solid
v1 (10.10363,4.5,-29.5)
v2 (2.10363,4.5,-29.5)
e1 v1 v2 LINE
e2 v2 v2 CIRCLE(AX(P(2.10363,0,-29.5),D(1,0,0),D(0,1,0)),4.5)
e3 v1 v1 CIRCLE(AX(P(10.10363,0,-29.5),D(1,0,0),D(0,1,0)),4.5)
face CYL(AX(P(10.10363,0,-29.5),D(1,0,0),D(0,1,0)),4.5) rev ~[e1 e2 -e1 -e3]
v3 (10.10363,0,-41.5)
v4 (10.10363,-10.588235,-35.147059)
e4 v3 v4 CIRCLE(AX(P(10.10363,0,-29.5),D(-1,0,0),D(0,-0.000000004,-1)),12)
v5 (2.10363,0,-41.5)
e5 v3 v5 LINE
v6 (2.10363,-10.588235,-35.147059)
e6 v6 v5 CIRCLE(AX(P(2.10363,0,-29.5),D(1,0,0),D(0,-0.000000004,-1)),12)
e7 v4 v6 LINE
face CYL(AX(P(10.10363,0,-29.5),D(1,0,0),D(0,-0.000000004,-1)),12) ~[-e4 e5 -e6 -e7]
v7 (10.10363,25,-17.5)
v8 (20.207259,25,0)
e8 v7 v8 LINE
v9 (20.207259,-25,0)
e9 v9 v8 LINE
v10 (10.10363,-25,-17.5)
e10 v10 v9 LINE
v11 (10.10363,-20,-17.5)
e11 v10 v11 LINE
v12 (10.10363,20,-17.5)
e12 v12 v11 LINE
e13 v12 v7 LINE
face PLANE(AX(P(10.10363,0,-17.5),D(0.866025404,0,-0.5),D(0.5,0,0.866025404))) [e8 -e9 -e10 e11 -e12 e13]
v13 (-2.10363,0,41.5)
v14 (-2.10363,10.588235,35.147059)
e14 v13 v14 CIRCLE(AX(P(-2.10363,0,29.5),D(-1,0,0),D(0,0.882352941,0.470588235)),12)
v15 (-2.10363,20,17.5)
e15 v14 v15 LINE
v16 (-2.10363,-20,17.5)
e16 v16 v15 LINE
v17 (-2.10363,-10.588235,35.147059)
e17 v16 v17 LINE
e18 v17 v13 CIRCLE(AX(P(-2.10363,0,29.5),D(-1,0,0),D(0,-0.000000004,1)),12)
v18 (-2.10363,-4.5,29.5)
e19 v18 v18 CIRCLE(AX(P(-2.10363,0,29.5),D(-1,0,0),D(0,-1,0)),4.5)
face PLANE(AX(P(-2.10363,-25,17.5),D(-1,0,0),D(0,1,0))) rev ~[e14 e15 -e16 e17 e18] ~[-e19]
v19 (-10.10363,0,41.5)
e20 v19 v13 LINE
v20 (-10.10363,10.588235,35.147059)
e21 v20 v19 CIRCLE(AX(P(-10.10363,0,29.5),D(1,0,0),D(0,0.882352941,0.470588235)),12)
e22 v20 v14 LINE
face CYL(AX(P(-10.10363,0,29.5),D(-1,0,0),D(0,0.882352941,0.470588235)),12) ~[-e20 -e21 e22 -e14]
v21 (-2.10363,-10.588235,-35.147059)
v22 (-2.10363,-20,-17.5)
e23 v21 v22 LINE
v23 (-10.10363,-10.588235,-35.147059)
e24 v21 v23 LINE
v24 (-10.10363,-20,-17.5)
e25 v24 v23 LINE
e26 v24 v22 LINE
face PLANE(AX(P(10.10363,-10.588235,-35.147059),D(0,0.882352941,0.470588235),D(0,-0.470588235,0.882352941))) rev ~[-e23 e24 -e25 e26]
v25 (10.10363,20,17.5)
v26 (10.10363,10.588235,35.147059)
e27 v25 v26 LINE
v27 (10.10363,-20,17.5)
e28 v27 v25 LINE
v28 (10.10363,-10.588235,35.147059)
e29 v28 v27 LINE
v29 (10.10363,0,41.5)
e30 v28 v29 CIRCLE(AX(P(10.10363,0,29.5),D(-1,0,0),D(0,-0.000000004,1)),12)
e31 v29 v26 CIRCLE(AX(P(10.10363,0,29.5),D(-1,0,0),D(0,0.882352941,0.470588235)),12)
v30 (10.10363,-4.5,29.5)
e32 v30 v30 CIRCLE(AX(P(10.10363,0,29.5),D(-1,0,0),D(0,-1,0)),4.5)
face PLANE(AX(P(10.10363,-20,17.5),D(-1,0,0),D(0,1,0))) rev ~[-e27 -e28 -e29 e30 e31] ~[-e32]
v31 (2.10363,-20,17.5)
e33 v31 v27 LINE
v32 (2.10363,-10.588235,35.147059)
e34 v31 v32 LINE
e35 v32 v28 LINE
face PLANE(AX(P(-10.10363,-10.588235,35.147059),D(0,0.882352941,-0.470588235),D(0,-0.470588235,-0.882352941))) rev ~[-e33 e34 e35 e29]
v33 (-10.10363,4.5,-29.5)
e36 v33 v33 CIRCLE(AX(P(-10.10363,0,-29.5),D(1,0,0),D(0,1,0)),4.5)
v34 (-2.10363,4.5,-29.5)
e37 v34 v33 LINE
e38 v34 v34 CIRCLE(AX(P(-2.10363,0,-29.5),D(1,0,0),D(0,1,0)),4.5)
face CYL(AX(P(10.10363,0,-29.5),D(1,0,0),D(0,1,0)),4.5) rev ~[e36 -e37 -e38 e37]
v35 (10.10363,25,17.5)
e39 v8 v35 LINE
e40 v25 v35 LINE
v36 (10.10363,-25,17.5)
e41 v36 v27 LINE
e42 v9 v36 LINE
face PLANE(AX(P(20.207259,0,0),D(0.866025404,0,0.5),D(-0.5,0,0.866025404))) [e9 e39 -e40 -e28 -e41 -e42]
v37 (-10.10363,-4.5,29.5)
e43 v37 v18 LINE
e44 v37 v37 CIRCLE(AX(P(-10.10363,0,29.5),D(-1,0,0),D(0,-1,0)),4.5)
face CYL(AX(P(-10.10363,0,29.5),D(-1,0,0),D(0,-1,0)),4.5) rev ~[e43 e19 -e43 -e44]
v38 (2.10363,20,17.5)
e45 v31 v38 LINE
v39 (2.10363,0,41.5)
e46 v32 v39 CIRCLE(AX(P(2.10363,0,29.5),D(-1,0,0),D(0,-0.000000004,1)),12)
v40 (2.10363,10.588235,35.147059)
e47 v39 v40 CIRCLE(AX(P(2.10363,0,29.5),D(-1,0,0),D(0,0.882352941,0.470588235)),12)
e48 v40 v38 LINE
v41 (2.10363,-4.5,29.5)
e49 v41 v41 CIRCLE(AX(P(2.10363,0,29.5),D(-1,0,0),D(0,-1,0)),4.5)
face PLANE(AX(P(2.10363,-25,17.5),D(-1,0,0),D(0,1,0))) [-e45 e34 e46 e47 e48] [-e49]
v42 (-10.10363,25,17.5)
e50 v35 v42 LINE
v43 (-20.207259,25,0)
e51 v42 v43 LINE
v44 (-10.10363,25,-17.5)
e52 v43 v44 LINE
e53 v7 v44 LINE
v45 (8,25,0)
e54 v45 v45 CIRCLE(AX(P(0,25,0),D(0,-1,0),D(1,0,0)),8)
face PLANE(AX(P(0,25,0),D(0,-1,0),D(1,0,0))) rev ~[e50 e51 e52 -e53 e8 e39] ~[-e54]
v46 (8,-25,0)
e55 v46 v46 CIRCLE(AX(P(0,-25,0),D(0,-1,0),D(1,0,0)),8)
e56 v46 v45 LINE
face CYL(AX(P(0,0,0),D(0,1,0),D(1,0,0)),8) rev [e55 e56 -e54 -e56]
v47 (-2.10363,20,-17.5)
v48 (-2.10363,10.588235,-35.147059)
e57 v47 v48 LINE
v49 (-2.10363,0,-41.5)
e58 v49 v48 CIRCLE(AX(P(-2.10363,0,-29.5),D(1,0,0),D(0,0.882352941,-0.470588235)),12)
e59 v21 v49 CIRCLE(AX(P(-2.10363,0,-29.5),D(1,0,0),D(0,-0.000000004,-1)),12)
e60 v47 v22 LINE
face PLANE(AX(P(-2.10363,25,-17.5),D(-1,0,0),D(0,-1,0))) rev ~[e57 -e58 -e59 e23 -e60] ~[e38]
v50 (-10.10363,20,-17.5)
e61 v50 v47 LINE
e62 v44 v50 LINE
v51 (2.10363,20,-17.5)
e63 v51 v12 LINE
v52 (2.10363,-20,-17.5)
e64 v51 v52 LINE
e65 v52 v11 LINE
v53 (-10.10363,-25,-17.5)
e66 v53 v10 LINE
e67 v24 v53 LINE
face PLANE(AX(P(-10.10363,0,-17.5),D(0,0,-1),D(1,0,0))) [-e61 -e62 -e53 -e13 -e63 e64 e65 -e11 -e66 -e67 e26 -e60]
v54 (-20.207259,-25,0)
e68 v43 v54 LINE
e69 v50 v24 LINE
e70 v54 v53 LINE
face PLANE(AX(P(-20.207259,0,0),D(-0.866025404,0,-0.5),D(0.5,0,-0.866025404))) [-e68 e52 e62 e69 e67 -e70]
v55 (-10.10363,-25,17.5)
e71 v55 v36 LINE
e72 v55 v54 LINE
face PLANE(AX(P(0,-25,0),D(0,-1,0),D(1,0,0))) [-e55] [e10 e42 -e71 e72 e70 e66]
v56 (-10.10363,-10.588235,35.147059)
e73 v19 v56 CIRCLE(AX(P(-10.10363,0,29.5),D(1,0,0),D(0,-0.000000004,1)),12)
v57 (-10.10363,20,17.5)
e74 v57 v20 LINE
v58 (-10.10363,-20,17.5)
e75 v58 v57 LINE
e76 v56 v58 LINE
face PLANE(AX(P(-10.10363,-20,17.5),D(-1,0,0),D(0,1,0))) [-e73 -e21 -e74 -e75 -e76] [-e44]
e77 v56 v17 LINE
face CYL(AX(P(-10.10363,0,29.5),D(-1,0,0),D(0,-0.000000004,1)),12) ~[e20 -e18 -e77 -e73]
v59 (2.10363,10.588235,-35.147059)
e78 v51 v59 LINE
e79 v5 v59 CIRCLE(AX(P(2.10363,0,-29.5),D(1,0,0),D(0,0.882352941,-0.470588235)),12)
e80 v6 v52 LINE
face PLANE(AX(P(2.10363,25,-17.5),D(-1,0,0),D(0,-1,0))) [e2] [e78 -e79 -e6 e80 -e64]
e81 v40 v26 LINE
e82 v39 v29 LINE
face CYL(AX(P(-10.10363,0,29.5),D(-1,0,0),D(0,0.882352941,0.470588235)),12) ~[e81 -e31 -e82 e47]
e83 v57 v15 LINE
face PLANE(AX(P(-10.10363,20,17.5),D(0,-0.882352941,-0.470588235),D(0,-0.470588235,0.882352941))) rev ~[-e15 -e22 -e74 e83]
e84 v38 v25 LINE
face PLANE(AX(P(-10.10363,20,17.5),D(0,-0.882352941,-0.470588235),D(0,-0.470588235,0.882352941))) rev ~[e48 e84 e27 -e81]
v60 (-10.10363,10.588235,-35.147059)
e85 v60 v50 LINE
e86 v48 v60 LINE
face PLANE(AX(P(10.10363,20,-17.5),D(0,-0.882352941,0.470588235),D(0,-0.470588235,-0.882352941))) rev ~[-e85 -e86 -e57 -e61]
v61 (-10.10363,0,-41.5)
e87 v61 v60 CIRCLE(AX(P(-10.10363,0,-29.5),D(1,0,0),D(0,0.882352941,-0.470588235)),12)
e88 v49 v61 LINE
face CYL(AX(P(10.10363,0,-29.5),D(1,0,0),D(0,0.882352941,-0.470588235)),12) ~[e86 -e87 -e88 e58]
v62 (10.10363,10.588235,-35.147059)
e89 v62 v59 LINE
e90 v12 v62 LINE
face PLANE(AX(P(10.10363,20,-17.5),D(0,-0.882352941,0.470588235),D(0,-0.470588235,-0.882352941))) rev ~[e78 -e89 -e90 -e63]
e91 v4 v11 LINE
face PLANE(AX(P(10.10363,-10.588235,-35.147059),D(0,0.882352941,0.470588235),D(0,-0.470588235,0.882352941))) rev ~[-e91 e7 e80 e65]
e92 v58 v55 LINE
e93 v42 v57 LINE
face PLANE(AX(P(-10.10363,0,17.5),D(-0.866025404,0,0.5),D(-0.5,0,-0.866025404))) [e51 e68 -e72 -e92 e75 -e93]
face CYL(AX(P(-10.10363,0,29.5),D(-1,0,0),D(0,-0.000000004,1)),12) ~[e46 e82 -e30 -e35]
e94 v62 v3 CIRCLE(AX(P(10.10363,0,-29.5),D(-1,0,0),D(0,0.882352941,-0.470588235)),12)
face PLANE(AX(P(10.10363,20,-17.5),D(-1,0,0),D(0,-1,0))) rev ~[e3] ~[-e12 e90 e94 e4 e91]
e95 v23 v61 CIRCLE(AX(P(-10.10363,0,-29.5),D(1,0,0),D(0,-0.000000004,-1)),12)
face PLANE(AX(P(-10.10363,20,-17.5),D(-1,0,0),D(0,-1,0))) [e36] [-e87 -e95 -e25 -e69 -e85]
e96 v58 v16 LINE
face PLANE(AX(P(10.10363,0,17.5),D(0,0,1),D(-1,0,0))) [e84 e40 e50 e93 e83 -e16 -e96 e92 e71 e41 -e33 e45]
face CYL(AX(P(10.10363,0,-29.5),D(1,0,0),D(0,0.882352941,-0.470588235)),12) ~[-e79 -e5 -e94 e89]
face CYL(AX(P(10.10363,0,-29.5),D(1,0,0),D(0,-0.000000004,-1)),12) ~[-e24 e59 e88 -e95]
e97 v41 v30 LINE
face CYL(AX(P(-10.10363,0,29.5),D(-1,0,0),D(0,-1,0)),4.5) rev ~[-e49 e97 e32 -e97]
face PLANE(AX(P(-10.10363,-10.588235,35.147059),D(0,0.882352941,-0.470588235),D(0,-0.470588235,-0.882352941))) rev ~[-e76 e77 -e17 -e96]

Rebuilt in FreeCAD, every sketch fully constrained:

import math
import FreeCAD as App
import Part
import Sketcher

V = App.Vector
Q = App.Units.Quantity


def add_polygon(sketch, points):
    """Adds a closed chain of lines whose ends are joined by coincident constraints."""
    first, n = sketch.GeometryCount, len(points)
    for a, b in zip(points, points[1:] + points[:1]):
        sketch.addGeometry(Part.LineSegment(App.Vector(*a, 0), App.Vector(*b, 0)), False)
    for i in range(n):
        sketch.addConstraint(Sketcher.Constraint("Coincident", first + i, 2, first + (i + 1) % n, 1))

doc = App.newDocument("Part")
body = doc.addObject("PartDesign::Body", "Body")

sketch1 = body.newObject("Sketcher::SketchObject", "Sketch")
sketch1.AttachmentSupport = (doc.getObject("XZ_Plane"), [""])
sketch1.MapMode = "FlatFace"
add_polygon(sketch1, [(10, 18), (-10, 18), (-20, 0), (-10, -18), (10, -18), (20, 0)])
sketch1.addGeometry(Part.Circle(V(0, 0, 0), V(0, 0, 1), 8), False)
sketch1.addConstraint([
    Sketcher.Constraint("Horizontal", 0),
    Sketcher.Constraint("Horizontal", 3),
    Sketcher.Constraint("Coincident", 6, 3, -1, 1),
    Sketcher.Constraint("Symmetric", 0, 2, 3, 2, -1, 1),
    Sketcher.Constraint("Symmetric", 1, 2, 4, 2, -1, 1),
    Sketcher.Constraint("PointOnObject", 1, 2, -1),
    Sketcher.Constraint("Parallel", 2, 5),
    Sketcher.Constraint("Vertical", 0, 2, 2, 2),
    Sketcher.Constraint("Diameter", 6, 16.0),
    Sketcher.Constraint("Angle", 1, Q("-120 deg")),
    Sketcher.Constraint("DistanceY", 2, 2, 0, 2, 35.0),
    Sketcher.Constraint("DistanceX", 0, 2, 0, 1, 20.207259),
])
pad1 = body.newObject("PartDesign::Pad", "Pad")
pad1.Profile = sketch1
pad1.Length = 50
pad1.Midplane = True

sketch2 = body.newObject("Sketcher::SketchObject", "Sketch001")
sketch2.AttachmentSupport = (doc.getObject("XY_Plane"), [""])
sketch2.MapMode = "FlatFace"
sketch2.AttachmentOffset = App.Placement(V(0, 0, 17.5), App.Rotation())
add_polygon(sketch2, [(-10, 20), (-10, -20), (10, -20), (10, 20)])
sketch2.addConstraint([
    Sketcher.Constraint("Vertical", 0),
    Sketcher.Constraint("Horizontal", 1),
    Sketcher.Constraint("Vertical", 2),
    Sketcher.Constraint("Horizontal", 3),
    Sketcher.Constraint("Symmetric", 0, 2, 2, 2, -1, 1),
    Sketcher.Constraint("DistanceY", 0, 2, 0, 1, 40.0),
    Sketcher.Constraint("DistanceX", 1, 1, 1, 2, 20.207259),
])
pad2 = body.newObject("PartDesign::Pad", "Pad001")
pad2.Profile = sketch2
pad2.Length = 24

sketch3 = body.newObject("Sketcher::SketchObject", "Sketch002")
sketch3.AttachmentSupport = (doc.getObject("YZ_Plane"), [""])
sketch3.MapMode = "FlatFace"
sketch3.AttachmentOffset = App.Placement(V(0, 0, -10.10363), App.Rotation())
sketch3.addGeometry(Part.Circle(V(0, 29.5, 0), V(0, 0, 1), 4.5), False)
sketch3.addConstraint([
    Sketcher.Constraint("PointOnObject", 0, 3, -2),
    Sketcher.Constraint("Diameter", 0, 9.0),
    Sketcher.Constraint("DistanceY", -1, 1, 0, 3, 29.5),
])
pocket1 = body.newObject("PartDesign::Pocket", "Pocket")
pocket1.Profile = sketch3
pocket1.Type = "ThroughAll"
pocket1.Reversed = True

sketch4 = body.newObject("Sketcher::SketchObject", "Sketch003")
sketch4.AttachmentSupport = (doc.getObject("YZ_Plane"), [""])
sketch4.MapMode = "FlatFace"
sketch4.AttachmentOffset = App.Placement(V(0, 0, -10.10363), App.Rotation())
sketch4.addGeometry([
    Part.LineSegment(V(20, 42, 0), V(20, 18, 0)),
    Part.LineSegment(V(20, 18, 0), V(11, 35, 0)),
    Part.ArcOfCircle(Part.Circle(V(0, 30, 0), V(0, 0, 1), 12), math.radians(28), math.radians(90)),
    Part.LineSegment(V(0, 42, 0), V(20, 42, 0)),
    Part.LineSegment(V(-11, 35, 0), V(-20, 18, 0)),
    Part.LineSegment(V(-20, 18, 0), V(-20, 42, 0)),
    Part.LineSegment(V(-20, 42, 0), V(0, 42, 0)),
    Part.ArcOfCircle(Part.Circle(V(0, 30, 0), V(0, 0, 1), 12), math.radians(90), math.radians(152)),
], False)
sketch4.addConstraint([
    Sketcher.Constraint("Coincident", 0, 2, 1, 1),
    Sketcher.Constraint("Tangent", 1, 2, 2, 1),
    Sketcher.Constraint("Tangent", 2, 2, 3, 1),
    Sketcher.Constraint("Coincident", 3, 2, 0, 1),
    Sketcher.Constraint("Coincident", 4, 2, 5, 1),
    Sketcher.Constraint("Coincident", 5, 2, 6, 1),
    Sketcher.Constraint("Tangent", 6, 2, 7, 1),
    Sketcher.Constraint("Tangent", 7, 2, 4, 1),
    Sketcher.Constraint("Vertical", 0),
    Sketcher.Constraint("Horizontal", 3),
    Sketcher.Constraint("Vertical", 5),
    Sketcher.Constraint("Horizontal", 6),
    Sketcher.Constraint("Coincident", 7, 3, 2, 3),
    Sketcher.Constraint("Equal", 2, 7),
    Sketcher.Constraint("Symmetric", 0, 2, 4, 2, -2),
    Sketcher.Constraint("PointOnObject", 2, 3, -2),
    Sketcher.Constraint("Radius", 2, 12.0),
    Sketcher.Constraint("DistanceX", 3, 1, 3, 2, 20.0),
    Sketcher.Constraint("DistanceY", 0, 2, 0, 1, 24.0),
    Sketcher.Constraint("DistanceY", -1, 1, 2, 3, 29.5),
])
pocket2 = body.newObject("PartDesign::Pocket", "Pocket001")
pocket2.Profile = sketch4
pocket2.Length = 25.4
pocket2.Reversed = True

sketch5 = body.newObject("Sketcher::SketchObject", "Sketch004")
sketch5.AttachmentSupport = (doc.getObject("XY_Plane"), [""])
sketch5.MapMode = "FlatFace"
sketch5.AttachmentOffset = App.Placement(V(0, 0, 17.5), App.Rotation())
add_polygon(sketch5, [(-2.1, 25), (-2.1, -25), (2.1, -25), (2.1, 25)])
sketch5.addConstraint([
    Sketcher.Constraint("Vertical", 0),
    Sketcher.Constraint("Horizontal", 1),
    Sketcher.Constraint("Vertical", 2),
    Sketcher.Constraint("Horizontal", 3),
    Sketcher.Constraint("Symmetric", 0, 2, 2, 2, -1, 1),
    Sketcher.Constraint("DistanceY", 0, 2, 0, 1, 50.0),
    Sketcher.Constraint("DistanceX", 1, 1, 1, 2, 4.207259),
])
pocket3 = body.newObject("PartDesign::Pocket", "Pocket002")
pocket3.Profile = sketch5
pocket3.Length = 25.4
pocket3.Reversed = True

sketch6 = body.newObject("Sketcher::SketchObject", "Sketch005")
sketch6.AttachmentSupport = (doc.getObject("XY_Plane"), [""])
sketch6.MapMode = "FlatFace"
sketch6.AttachmentOffset = App.Placement(V(0, 0, -17.5), App.Rotation())
add_polygon(sketch6, [(-10, -20), (-10, 20), (10, 20), (10, -20)])
sketch6.addConstraint([
    Sketcher.Constraint("Vertical", 0),
    Sketcher.Constraint("Horizontal", 1),
    Sketcher.Constraint("Vertical", 2),
    Sketcher.Constraint("Horizontal", 3),
    Sketcher.Constraint("Symmetric", 0, 2, 2, 2, -1, 1),
    Sketcher.Constraint("DistanceY", 0, 1, 0, 2, 40.0),
    Sketcher.Constraint("DistanceX", 1, 1, 1, 2, 20.207259),
])
pad3 = body.newObject("PartDesign::Pad", "Pad002")
pad3.Profile = sketch6
pad3.Length = 24
pad3.Reversed = True

sketch7 = body.newObject("Sketcher::SketchObject", "Sketch006")
sketch7.AttachmentSupport = (doc.getObject("YZ_Plane"), [""])
sketch7.MapMode = "FlatFace"
sketch7.AttachmentOffset = App.Placement(V(0, 0, 10.10363), App.Rotation())
sketch7.addGeometry(Part.Circle(V(0, -29.5, 0), V(0, 0, 1), 4.5), False)
sketch7.addConstraint([
    Sketcher.Constraint("PointOnObject", 0, 3, -2),
    Sketcher.Constraint("Diameter", 0, 9.0),
    Sketcher.Constraint("DistanceY", 0, 3, -1, 1, 29.5),
])
pocket4 = body.newObject("PartDesign::Pocket", "Pocket003")
pocket4.Profile = sketch7
pocket4.Length = 25.4

sketch8 = body.newObject("Sketcher::SketchObject", "Sketch007")
sketch8.AttachmentSupport = (doc.getObject("YZ_Plane"), [""])
sketch8.MapMode = "FlatFace"
sketch8.AttachmentOffset = App.Placement(V(0, 0, 10.10363), App.Rotation())
sketch8.addGeometry([
    Part.LineSegment(V(20, -42, 0), V(20, -18, 0)),
    Part.LineSegment(V(20, -18, 0), V(11, -35, 0)),
    Part.ArcOfCircle(Part.Circle(V(0, -30, 0), V(0, 0, 1), 12), math.radians(-90), math.radians(-28)),
    Part.LineSegment(V(0, -42, 0), V(20, -42, 0)),
    Part.LineSegment(V(-11, -35, 0), V(-20, -18, 0)),
    Part.LineSegment(V(-20, -18, 0), V(-20, -42, 0)),
    Part.LineSegment(V(-20, -42, 0), V(0, -42, 0)),
    Part.ArcOfCircle(Part.Circle(V(0, -30, 0), V(0, 0, 1), 12), math.radians(-152), math.radians(-90)),
], False)
sketch8.addConstraint([
    Sketcher.Constraint("Coincident", 0, 2, 1, 1),
    Sketcher.Constraint("Tangent", 1, 2, 2, 2),
    Sketcher.Constraint("Tangent", 2, 1, 3, 1),
    Sketcher.Constraint("Coincident", 3, 2, 0, 1),
    Sketcher.Constraint("Coincident", 4, 2, 5, 1),
    Sketcher.Constraint("Coincident", 5, 2, 6, 1),
    Sketcher.Constraint("Tangent", 6, 2, 7, 2),
    Sketcher.Constraint("Tangent", 7, 1, 4, 1),
    Sketcher.Constraint("Vertical", 0),
    Sketcher.Constraint("Horizontal", 3),
    Sketcher.Constraint("Vertical", 5),
    Sketcher.Constraint("Horizontal", 6),
    Sketcher.Constraint("Coincident", 7, 3, 2, 3),
    Sketcher.Constraint("Equal", 2, 7),
    Sketcher.Constraint("Symmetric", 0, 2, 4, 2, -2),
    Sketcher.Constraint("PointOnObject", 2, 3, -2),
    Sketcher.Constraint("Radius", 2, 12.0),
    Sketcher.Constraint("DistanceX", 3, 1, 3, 2, 20.0),
    Sketcher.Constraint("DistanceY", 0, 1, 0, 2, 24.0),
    Sketcher.Constraint("DistanceY", 2, 3, -1, 1, 29.5),
])
pocket5 = body.newObject("PartDesign::Pocket", "Pocket004")
pocket5.Profile = sketch8
pocket5.Length = 25.4

sketch9 = body.newObject("Sketcher::SketchObject", "Sketch008")
sketch9.AttachmentSupport = (doc.getObject("XY_Plane"), [""])
sketch9.MapMode = "FlatFace"
sketch9.AttachmentOffset = App.Placement(V(0, 0, -17.5), App.Rotation())
add_polygon(sketch9, [(-2.1, -25), (-2.1, 25), (2.1, 25), (2.1, -25)])
sketch9.addConstraint([
    Sketcher.Constraint("Vertical", 0),
    Sketcher.Constraint("Horizontal", 1),
    Sketcher.Constraint("Vertical", 2),
    Sketcher.Constraint("Horizontal", 3),
    Sketcher.Constraint("Symmetric", 0, 2, 2, 2, -1, 1),
    Sketcher.Constraint("DistanceY", 0, 1, 0, 2, 50.0),
    Sketcher.Constraint("DistanceX", 1, 1, 1, 2, 4.207259),
])
pocket6 = body.newObject("PartDesign::Pocket", "Pocket005")
pocket6.Profile = sketch9
pocket6.Length = 25.4

doc.recompute()
